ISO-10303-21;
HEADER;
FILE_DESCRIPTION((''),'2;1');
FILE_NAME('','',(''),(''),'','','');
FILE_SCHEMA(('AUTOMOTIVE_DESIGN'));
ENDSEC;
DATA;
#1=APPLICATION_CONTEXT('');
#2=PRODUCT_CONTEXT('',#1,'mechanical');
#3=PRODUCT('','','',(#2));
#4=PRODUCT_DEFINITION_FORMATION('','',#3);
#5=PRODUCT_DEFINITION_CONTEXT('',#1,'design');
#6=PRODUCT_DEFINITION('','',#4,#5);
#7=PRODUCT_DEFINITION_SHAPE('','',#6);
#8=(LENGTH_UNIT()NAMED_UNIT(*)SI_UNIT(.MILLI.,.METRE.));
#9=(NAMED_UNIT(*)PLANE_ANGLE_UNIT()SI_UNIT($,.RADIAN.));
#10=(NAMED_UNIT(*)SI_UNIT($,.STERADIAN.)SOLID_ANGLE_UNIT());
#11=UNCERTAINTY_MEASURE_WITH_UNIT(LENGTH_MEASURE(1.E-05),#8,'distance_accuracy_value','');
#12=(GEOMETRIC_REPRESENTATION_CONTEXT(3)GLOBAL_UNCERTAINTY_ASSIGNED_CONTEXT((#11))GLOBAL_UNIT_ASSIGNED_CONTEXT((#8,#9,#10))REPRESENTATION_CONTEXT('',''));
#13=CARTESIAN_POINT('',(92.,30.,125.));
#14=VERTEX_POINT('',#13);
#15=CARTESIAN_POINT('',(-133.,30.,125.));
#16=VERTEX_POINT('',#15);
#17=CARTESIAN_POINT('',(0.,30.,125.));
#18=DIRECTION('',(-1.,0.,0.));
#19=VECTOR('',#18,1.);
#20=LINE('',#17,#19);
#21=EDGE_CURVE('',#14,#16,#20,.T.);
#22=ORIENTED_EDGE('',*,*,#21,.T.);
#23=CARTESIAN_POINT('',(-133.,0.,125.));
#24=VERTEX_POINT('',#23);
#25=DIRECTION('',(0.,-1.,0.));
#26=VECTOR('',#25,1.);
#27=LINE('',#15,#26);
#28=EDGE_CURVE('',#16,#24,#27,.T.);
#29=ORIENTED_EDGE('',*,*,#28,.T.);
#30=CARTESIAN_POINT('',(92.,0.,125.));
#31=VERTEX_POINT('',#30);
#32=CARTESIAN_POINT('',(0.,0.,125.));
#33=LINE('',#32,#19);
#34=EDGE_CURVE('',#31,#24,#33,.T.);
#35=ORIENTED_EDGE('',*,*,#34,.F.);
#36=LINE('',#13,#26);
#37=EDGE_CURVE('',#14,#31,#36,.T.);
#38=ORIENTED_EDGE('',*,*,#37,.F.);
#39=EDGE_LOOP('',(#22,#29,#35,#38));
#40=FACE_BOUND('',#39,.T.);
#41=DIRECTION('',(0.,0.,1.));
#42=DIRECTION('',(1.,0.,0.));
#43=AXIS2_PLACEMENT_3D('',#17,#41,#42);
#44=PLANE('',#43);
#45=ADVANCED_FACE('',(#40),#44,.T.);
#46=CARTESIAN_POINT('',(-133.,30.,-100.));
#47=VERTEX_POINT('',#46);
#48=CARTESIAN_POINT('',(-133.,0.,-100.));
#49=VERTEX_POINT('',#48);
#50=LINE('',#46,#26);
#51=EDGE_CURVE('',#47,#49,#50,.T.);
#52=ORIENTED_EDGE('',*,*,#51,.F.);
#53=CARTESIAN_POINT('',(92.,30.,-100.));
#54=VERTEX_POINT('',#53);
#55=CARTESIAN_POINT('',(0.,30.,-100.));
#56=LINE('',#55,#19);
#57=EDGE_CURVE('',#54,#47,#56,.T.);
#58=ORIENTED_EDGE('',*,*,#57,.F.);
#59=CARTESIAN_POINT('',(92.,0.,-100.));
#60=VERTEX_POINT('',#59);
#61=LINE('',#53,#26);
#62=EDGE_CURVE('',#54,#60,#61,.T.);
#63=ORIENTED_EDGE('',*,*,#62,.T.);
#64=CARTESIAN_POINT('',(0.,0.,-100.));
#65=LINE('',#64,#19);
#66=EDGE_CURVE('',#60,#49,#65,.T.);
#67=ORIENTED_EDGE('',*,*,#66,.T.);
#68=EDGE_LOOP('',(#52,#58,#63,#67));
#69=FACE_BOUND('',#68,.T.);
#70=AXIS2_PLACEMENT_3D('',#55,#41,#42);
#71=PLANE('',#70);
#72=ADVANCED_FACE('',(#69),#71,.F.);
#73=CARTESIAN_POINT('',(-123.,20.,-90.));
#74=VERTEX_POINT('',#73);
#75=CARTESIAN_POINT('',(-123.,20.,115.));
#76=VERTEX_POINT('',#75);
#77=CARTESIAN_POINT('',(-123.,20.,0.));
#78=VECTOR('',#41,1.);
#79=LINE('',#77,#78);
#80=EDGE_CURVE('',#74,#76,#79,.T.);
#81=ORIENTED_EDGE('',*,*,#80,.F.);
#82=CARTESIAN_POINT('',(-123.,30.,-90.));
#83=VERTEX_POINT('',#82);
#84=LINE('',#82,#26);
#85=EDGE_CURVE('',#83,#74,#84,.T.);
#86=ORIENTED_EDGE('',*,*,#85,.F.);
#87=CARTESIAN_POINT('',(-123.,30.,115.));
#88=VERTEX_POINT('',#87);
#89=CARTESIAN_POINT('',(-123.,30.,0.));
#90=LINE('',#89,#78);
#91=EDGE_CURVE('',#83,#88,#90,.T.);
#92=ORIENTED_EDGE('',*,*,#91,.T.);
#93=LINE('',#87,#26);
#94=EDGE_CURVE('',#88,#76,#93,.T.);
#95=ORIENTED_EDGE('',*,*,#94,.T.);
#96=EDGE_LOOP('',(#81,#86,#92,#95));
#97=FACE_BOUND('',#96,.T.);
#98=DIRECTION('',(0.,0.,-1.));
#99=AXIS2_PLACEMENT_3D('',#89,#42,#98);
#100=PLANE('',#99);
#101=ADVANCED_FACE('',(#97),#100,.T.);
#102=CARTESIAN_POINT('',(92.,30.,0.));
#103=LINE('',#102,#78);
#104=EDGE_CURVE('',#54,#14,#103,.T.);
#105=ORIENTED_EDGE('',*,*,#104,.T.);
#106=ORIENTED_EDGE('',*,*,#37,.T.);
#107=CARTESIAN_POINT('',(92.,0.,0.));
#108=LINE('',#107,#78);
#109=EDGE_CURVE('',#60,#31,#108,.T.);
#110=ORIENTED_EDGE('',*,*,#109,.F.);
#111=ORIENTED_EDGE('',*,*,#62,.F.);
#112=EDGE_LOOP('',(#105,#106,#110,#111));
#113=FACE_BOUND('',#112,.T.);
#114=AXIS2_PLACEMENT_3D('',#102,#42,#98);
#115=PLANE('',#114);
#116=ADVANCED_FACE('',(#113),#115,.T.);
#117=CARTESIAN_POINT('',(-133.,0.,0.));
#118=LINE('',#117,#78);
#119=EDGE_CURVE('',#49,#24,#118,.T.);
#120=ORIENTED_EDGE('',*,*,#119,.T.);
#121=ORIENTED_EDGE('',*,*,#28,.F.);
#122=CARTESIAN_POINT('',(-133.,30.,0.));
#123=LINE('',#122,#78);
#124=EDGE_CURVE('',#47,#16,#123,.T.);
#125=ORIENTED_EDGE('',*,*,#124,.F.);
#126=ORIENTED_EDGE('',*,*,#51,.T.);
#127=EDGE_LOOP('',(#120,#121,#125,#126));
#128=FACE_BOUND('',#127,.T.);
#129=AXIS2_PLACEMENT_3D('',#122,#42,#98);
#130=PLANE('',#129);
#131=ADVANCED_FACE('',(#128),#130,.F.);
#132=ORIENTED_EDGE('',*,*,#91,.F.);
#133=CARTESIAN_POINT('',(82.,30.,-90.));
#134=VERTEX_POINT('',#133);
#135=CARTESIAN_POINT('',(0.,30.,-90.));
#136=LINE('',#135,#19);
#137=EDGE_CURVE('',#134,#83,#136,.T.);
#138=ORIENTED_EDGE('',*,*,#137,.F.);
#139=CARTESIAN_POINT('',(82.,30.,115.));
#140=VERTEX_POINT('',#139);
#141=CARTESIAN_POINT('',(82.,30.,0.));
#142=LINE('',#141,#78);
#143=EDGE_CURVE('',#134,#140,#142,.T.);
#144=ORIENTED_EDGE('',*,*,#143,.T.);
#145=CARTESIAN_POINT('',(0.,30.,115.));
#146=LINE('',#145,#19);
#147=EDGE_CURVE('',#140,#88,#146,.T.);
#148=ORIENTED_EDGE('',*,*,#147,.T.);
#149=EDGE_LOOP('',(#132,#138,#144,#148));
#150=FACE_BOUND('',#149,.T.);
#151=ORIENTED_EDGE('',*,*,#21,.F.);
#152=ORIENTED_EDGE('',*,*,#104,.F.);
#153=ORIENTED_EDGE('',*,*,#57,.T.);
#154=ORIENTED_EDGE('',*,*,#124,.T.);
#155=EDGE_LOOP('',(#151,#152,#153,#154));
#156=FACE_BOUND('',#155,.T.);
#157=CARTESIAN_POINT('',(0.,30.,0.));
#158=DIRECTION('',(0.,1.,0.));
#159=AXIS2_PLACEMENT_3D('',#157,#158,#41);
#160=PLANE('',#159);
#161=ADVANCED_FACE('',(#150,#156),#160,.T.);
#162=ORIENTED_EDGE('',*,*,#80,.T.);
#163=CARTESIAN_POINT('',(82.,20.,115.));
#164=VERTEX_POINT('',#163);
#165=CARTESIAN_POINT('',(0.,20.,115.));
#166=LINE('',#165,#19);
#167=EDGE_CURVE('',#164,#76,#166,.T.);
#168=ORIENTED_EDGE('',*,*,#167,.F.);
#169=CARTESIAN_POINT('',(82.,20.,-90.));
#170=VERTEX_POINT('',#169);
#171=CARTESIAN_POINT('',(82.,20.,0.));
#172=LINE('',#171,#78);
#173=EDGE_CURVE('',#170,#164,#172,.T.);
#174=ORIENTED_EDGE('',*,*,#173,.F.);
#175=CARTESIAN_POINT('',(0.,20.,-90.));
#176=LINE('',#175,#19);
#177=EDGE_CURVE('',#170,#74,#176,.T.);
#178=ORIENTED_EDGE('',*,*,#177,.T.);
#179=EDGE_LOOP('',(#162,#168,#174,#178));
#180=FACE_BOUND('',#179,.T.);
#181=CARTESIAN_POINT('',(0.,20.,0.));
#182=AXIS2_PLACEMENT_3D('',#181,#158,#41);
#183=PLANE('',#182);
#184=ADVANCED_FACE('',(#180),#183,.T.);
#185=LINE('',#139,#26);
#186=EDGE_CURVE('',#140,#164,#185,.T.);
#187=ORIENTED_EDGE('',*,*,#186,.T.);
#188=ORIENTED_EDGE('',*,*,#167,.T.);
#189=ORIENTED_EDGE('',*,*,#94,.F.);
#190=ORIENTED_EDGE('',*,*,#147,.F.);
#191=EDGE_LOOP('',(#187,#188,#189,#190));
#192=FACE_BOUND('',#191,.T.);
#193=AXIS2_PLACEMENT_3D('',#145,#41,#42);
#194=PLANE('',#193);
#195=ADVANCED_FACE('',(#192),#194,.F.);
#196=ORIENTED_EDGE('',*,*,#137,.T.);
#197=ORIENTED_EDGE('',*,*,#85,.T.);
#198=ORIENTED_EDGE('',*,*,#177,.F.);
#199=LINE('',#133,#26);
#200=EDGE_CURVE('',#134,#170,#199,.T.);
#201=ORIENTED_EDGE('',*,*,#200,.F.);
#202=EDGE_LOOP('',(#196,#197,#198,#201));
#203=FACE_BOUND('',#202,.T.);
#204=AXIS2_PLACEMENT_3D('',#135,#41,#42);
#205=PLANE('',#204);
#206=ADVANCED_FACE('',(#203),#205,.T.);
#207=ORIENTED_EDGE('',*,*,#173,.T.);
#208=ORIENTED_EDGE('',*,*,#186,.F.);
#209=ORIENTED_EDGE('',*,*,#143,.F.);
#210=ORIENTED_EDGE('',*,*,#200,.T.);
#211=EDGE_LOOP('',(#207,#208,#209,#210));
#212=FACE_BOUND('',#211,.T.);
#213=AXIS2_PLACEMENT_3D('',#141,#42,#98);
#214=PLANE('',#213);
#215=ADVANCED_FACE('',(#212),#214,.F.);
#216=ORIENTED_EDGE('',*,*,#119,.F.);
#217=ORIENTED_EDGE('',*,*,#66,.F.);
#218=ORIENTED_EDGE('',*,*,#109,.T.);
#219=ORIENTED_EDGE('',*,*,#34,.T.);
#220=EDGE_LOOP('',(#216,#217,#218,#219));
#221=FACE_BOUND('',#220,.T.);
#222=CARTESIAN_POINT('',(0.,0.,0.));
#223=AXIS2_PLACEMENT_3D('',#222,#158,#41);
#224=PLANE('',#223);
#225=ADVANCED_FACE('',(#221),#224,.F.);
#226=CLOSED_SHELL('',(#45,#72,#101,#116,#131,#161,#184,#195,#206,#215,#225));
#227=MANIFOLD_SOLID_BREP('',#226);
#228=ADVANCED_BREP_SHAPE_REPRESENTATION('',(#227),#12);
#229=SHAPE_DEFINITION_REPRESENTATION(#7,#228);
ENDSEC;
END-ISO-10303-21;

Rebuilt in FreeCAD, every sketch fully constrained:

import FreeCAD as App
import Part
import Sketcher
from FreeCAD import Vector

doc = App.newDocument("Part")
body = doc.addObject("PartDesign::Body", "Body")

# Sketch on XZ plane
sketch1 = body.newObject("Sketcher::SketchObject", "Sketch")
sketch1.AttachmentSupport = (doc.getObject("XZ_Plane"), [""])
sketch1.MapMode = "FlatFace"
sketch1.addGeometry(Part.LineSegment(Vector(-133, -100, 0), Vector(-133, 125, 0)), False)
sketch1.addGeometry(Part.LineSegment(Vector(-133, 125, 0), Vector(92, 125, 0)), False)
sketch1.addGeometry(Part.LineSegment(Vector(92, 125, 0), Vector(92, -100, 0)), False)
sketch1.addGeometry(Part.LineSegment(Vector(92, -100, 0), Vector(-133, -100, 0)), False)
sketch1.addGeometry(Part.LineSegment(Vector(82, 115, 0), Vector(-123, 115, 0)), False)
sketch1.addGeometry(Part.LineSegment(Vector(-123, 115, 0), Vector(-123, -90, 0)), False)
sketch1.addGeometry(Part.LineSegment(Vector(-123, -90, 0), Vector(82, -90, 0)), False)
sketch1.addGeometry(Part.LineSegment(Vector(82, -90, 0), Vector(82, 115, 0)), False)
sketch1.addConstraint(Sketcher.Constraint("Coincident", 0, 2, 1, 1))
sketch1.addConstraint(Sketcher.Constraint("Coincident", 1, 2, 2, 1))
sketch1.addConstraint(Sketcher.Constraint("Coincident", 2, 2, 3, 1))
sketch1.addConstraint(Sketcher.Constraint("Coincident", 3, 2, 0, 1))
sketch1.addConstraint(Sketcher.Constraint("Coincident", 4, 2, 5, 1))
sketch1.addConstraint(Sketcher.Constraint("Coincident", 5, 2, 6, 1))
sketch1.addConstraint(Sketcher.Constraint("Coincident", 6, 2, 7, 1))
sketch1.addConstraint(Sketcher.Constraint("Coincident", 7, 2, 4, 1))
sketch1.addConstraint(Sketcher.Constraint("Vertical", 0))
sketch1.addConstraint(Sketcher.Constraint("Horizontal", 1))
sketch1.addConstraint(Sketcher.Constraint("Vertical", 2))
sketch1.addConstraint(Sketcher.Constraint("Horizontal", 3))
sketch1.addConstraint(Sketcher.Constraint("Horizontal", 4))
sketch1.addConstraint(Sketcher.Constraint("Vertical", 5))
sketch1.addConstraint(Sketcher.Constraint("Horizontal", 6))
sketch1.addConstraint(Sketcher.Constraint("Vertical", 7))
sketch1.addConstraint(Sketcher.Constraint("Equal", 3, 0))
sketch1.addConstraint(Sketcher.Constraint("Equal", 6, 5))
sketch1.addConstraint(Sketcher.Constraint("DistanceX", 1, 1, 1, 2, 225.0))
sketch1.addConstraint(Sketcher.Constraint("DistanceX", 4, 2, 4, 1, 205.0))
sketch1.addConstraint(Sketcher.Constraint("DistanceX", 0, 2, -1, 1, 133.0))
sketch1.addConstraint(Sketcher.Constraint("DistanceY", -1, 1, 0, 2, 125.0))
sketch1.addConstraint(Sketcher.Constraint("DistanceX", 4, 2, -1, 1, 123.0))
sketch1.addConstraint(Sketcher.Constraint("DistanceY", -1, 1, 4, 2, 115.0))
pad1 = body.newObject("PartDesign::Pad", "Pad")
pad1.Profile = sketch1
pad1.Length = 30
pad1.Reversed = True

# Sketch on XZ plane
sketch2 = body.newObject("Sketcher::SketchObject", "Sketch001")
sketch2.AttachmentSupport = (doc.getObject("XZ_Plane"), [""])
sketch2.MapMode = "FlatFace"
sketch2.addGeometry(Part.LineSegment(Vector(-123, -90, 0), Vector(-123, 115, 0)), False)
sketch2.addGeometry(Part.LineSegment(Vector(-123, 115, 0), Vector(82, 115, 0)), False)
sketch2.addGeometry(Part.LineSegment(Vector(82, 115, 0), Vector(82, -90, 0)), False)
sketch2.addGeometry(Part.LineSegment(Vector(82, -90, 0), Vector(-123, -90, 0)), False)
sketch2.addConstraint(Sketcher.Constraint("Coincident", 0, 2, 1, 1))
sketch2.addConstraint(Sketcher.Constraint("Coincident", 1, 2, 2, 1))
sketch2.addConstraint(Sketcher.Constraint("Coincident", 2, 2, 3, 1))
sketch2.addConstraint(Sketcher.Constraint("Coincident", 3, 2, 0, 1))
sketch2.addConstraint(Sketcher.Constraint("Vertical", 0))
sketch2.addConstraint(Sketcher.Constraint("Horizontal", 1))
sketch2.addConstraint(Sketcher.Constraint("Vertical", 2))
sketch2.addConstraint(Sketcher.Constraint("Horizontal", 3))
sketch2.addConstraint(Sketcher.Constraint("Equal", 3, 0))
sketch2.addConstraint(Sketcher.Constraint("DistanceX", 1, 1, 1, 2, 205.0))
sketch2.addConstraint(Sketcher.Constraint("DistanceX", 0, 2, -1, 1, 123.0))
sketch2.addConstraint(Sketcher.Constraint("DistanceY", -1, 1, 0, 2, 115.0))
pad2 = body.newObject("PartDesign::Pad", "Pad001")
pad2.Profile = sketch2
pad2.Length = 20
pad2.Reversed = True

doc.recompute()
